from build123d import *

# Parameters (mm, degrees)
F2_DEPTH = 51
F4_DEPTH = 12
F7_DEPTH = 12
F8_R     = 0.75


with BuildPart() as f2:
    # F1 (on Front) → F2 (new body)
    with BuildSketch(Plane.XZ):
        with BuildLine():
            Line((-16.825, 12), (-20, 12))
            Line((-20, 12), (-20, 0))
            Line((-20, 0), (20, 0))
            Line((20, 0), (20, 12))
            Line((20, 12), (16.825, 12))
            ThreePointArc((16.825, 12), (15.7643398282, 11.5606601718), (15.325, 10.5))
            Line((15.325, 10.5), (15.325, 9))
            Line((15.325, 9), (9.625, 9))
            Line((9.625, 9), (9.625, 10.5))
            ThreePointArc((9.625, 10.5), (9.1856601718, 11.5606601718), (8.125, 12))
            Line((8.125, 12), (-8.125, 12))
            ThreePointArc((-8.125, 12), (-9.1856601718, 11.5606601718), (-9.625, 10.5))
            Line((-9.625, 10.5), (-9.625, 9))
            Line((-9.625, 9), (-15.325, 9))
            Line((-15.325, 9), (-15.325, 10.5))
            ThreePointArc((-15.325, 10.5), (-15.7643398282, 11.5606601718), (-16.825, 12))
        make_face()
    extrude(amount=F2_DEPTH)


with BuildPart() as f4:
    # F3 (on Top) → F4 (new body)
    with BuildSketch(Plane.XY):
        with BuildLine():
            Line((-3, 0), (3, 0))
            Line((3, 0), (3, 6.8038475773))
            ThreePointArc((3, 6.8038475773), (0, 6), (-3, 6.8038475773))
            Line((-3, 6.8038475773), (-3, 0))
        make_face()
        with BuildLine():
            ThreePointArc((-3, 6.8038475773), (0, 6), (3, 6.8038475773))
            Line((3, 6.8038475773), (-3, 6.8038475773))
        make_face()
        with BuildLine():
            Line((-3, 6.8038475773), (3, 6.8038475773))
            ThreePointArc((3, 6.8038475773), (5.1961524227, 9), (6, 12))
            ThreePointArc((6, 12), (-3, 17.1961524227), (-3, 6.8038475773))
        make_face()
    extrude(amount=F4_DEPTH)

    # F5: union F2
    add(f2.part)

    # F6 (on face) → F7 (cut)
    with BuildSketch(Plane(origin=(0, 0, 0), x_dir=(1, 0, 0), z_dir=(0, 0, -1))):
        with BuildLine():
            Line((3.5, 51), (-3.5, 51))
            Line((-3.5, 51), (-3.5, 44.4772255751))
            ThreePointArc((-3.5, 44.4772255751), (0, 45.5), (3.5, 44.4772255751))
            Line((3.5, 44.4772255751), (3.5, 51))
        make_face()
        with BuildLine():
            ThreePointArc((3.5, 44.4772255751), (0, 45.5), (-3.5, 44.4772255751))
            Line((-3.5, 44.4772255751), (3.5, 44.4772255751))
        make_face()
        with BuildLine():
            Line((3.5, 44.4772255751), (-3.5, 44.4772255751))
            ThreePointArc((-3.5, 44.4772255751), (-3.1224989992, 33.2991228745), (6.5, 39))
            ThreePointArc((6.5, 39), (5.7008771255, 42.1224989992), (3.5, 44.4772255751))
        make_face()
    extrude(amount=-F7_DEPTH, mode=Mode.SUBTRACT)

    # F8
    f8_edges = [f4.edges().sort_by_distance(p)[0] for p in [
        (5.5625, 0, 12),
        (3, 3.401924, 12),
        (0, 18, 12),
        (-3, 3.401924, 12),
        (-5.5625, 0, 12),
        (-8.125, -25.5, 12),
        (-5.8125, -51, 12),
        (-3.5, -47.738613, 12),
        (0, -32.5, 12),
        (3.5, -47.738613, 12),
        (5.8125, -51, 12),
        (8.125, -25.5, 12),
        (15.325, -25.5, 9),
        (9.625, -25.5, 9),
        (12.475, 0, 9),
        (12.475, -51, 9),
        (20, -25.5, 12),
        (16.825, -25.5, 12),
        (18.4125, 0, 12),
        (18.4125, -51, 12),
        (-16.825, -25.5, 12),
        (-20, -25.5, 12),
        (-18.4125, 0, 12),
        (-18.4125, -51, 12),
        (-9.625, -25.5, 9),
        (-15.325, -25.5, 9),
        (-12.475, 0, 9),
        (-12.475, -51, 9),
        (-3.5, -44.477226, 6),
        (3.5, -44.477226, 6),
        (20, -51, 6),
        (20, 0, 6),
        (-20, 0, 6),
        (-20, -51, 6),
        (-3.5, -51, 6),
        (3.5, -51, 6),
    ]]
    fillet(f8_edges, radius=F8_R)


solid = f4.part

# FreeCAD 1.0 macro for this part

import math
import FreeCAD as App
import Part
import Sketcher


def edges_at(feature, points):
    """Names of the edges that pass closest to the given points."""
    edges = feature.Shape.Edges
    near = lambda p: min(range(len(edges)), key=lambda i: edges[i].distToShape(Part.Vertex(*p))[0])
    return sorted({f"Edge{near(p) + 1}" for p in points})

doc = App.newDocument("Part")
body = doc.addObject("PartDesign::Body", "Body")

# Sketch on XZ plane
sketch1 = body.newObject("Sketcher::SketchObject", "Sketch")
sketch1.AttachmentSupport = (doc.getObject("XZ_Plane"), [""])
sketch1.MapMode = "FlatFace"
sketch1.addGeometry([
    Part.LineSegment(App.Vector(-16.825, 12, 0), App.Vector(-20, 12, 0)),  # 0
    Part.LineSegment(App.Vector(-20, 12, 0), App.Vector(-20, 0, 0)),  # 1
    Part.LineSegment(App.Vector(-20, 0, 0), App.Vector(20, 0, 0)),  # 2
    Part.LineSegment(App.Vector(20, 0, 0), App.Vector(20, 12, 0)),  # 3
    Part.LineSegment(App.Vector(20, 12, 0), App.Vector(16.825, 12, 0)),  # 4
    Part.ArcOfCircle(Part.Circle(App.Vector(16.825, 10.5, 0), App.Vector(0, 0, 1), 1.5), math.radians(90), math.radians(180)),  # 5
    Part.LineSegment(App.Vector(15.325, 10.5, 0), App.Vector(15.325, 9, 0)),  # 6
    Part.LineSegment(App.Vector(15.325, 9, 0), App.Vector(9.625, 9, 0)),  # 7
    Part.LineSegment(App.Vector(9.625, 9, 0), App.Vector(9.625, 10.5, 0)),  # 8
    Part.ArcOfCircle(Part.Circle(App.Vector(8.125, 10.5, 0), App.Vector(0, 0, 1), 1.5), math.radians(0), math.radians(90)),  # 9
    Part.LineSegment(App.Vector(8.125, 12, 0), App.Vector(-8.125, 12, 0)),  # 10
    Part.ArcOfCircle(Part.Circle(App.Vector(-8.125, 10.5, 0), App.Vector(0, 0, 1), 1.5), math.radians(90), math.radians(180)),  # 11
    Part.LineSegment(App.Vector(-9.625, 10.5, 0), App.Vector(-9.625, 9, 0)),  # 12
    Part.LineSegment(App.Vector(-9.625, 9, 0), App.Vector(-15.325, 9, 0)),  # 13
    Part.LineSegment(App.Vector(-15.325, 9, 0), App.Vector(-15.325, 10.5, 0)),  # 14
    Part.ArcOfCircle(Part.Circle(App.Vector(-16.825, 10.5, 0), App.Vector(0, 0, 1), 1.5), math.radians(0), math.radians(90)),  # 15
], False)
sketch1.addConstraint([
    Sketcher.Constraint("Coincident", 0, 2, 1, 1),
    Sketcher.Constraint("Coincident", 1, 2, 2, 1),
    Sketcher.Constraint("Coincident", 2, 2, 3, 1),
    Sketcher.Constraint("Coincident", 3, 2, 4, 1),
    Sketcher.Constraint("Tangent", 4, 2, 5, 1),
    Sketcher.Constraint("Tangent", 5, 2, 6, 1),
    Sketcher.Constraint("Coincident", 6, 2, 7, 1),
    Sketcher.Constraint("Coincident", 7, 2, 8, 1),
    Sketcher.Constraint("Tangent", 8, 2, 9, 1),
    Sketcher.Constraint("Tangent", 9, 2, 10, 1),
    Sketcher.Constraint("Tangent", 10, 2, 11, 1),
    Sketcher.Constraint("Tangent", 11, 2, 12, 1),
    Sketcher.Constraint("Coincident", 12, 2, 13, 1),
    Sketcher.Constraint("Coincident", 13, 2, 14, 1),
    Sketcher.Constraint("Tangent", 14, 2, 15, 1),
    Sketcher.Constraint("Tangent", 15, 2, 0, 1),
    Sketcher.Constraint("Horizontal", 0),
    Sketcher.Constraint("Vertical", 1),
    Sketcher.Constraint("Horizontal", 2),
    Sketcher.Constraint("Vertical", 3),
    Sketcher.Constraint("Horizontal", 4),
    Sketcher.Constraint("Vertical", 6),
    Sketcher.Constraint("Horizontal", 7),
    Sketcher.Constraint("Vertical", 8),
    Sketcher.Constraint("Horizontal", 10),
    Sketcher.Constraint("Vertical", 12),
    Sketcher.Constraint("Horizontal", 13),
    Sketcher.Constraint("Vertical", 14),
    Sketcher.Constraint("Equal", 5, 9),
    Sketcher.Constraint("Equal", 9, 11),
    Sketcher.Constraint("Equal", 11, 15),
    Sketcher.Constraint("Symmetric", 1, 2, 2, 2, -1, 1),
    Sketcher.Constraint("Symmetric", 5, 3, 15, 3, -2),
    Sketcher.Constraint("Symmetric", 7, 2, 12, 2, -2),
    Sketcher.Constraint("Horizontal", 5, 3, 9, 3),
    Sketcher.Constraint("Radius", 5, 1.5),
    Sketcher.Constraint("DistanceX", 2, 1, 2, 2, 40.0),
    Sketcher.Constraint("DistanceY", 1, 2, 1, 1, 12.0),
    Sketcher.Constraint("DistanceX", 7, 2, 7, 1, 5.7),
    Sketcher.Constraint("DistanceY", 6, 2, 6, 1, 1.5),
    Sketcher.Constraint("DistanceX", 10, 2, 10, 1, 16.25),
])
pad1 = body.newObject("PartDesign::Pad", "Pad")
pad1.Profile = sketch1
pad1.Length = 51
body2 = doc.addObject("PartDesign::Body", "Body001")

# Sketch on XY plane
sketch2 = body2.newObject("Sketcher::SketchObject", "Sketch001")
sketch2.AttachmentSupport = (doc.getObject("XY_Plane001"), [""])
sketch2.MapMode = "FlatFace"
sketch2.addGeometry([
    Part.LineSegment(App.Vector(-3, 0, 0), App.Vector(3, 0, 0)),  # 0
    Part.LineSegment(App.Vector(3, 0, 0), App.Vector(3, 6.803848, 0)),  # 1
    Part.ArcOfCircle(Part.Circle(App.Vector(0, 12, 0), App.Vector(0, 0, 1), 6), math.radians(-60), math.radians(0)),  # 2
    Part.ArcOfCircle(Part.Circle(App.Vector(0, 12, 0), App.Vector(0, 0, 1), 6), math.radians(0), math.radians(240)),  # 3
    Part.LineSegment(App.Vector(-3, 6.803848, 0), App.Vector(-3, 0, 0)),  # 4
], False)
sketch2.addConstraint([
    Sketcher.Constraint("Coincident", 0, 2, 1, 1),
    Sketcher.Constraint("Coincident", 1, 2, 2, 1),
    Sketcher.Constraint("Tangent", 2, 2, 3, 1),
    Sketcher.Constraint("Coincident", 3, 2, 4, 1),
    Sketcher.Constraint("Coincident", 4, 2, 0, 1),
    Sketcher.Constraint("Horizontal", 0),
    Sketcher.Constraint("Vertical", 1),
    Sketcher.Constraint("Vertical", 4),
    Sketcher.Constraint("Equal", 2, 3),
    Sketcher.Constraint("Symmetric", 0, 2, 4, 2, -1, 1),
    Sketcher.Constraint("PointOnObject", 2, 3, -2),
    Sketcher.Constraint("Horizontal", 3, 3, 2, 2),
    Sketcher.Constraint("Radius", 2, 6.0),
    Sketcher.Constraint("DistanceX", 0, 1, 0, 2, 6.0),
    Sketcher.Constraint("DistanceY", -1, 1, 2, 3, 12.0),
])
pad2 = body2.newObject("PartDesign::Pad", "Pad001")
pad2.Profile = sketch2
pad2.Length = 12
doc.recompute()

boolean = body2.newObject("PartDesign::Boolean", "Boolean")
boolean.Type = "Fuse"
boolean.addObjects([body])

# Sketch on XY plane
sketch3 = body2.newObject("Sketcher::SketchObject", "Sketch002")
sketch3.AttachmentSupport = (doc.getObject("XY_Plane001"), [""])
sketch3.MapMode = "FlatFace"
sketch3.addGeometry([
    Part.LineSegment(App.Vector(3.5, -51, 0), App.Vector(-3.5, -51, 0)),  # 0
    Part.LineSegment(App.Vector(-3.5, -51, 0), App.Vector(-3.5, -44.477226, 0)),  # 1
    Part.ArcOfCircle(Part.Circle(App.Vector(0, -39, 0), App.Vector(0, 0, 1), 6.5), math.radians(0), math.radians(237.42103)),  # 2
    Part.ArcOfCircle(Part.Circle(App.Vector(0, -39, 0), App.Vector(0, 0, 1), 6.5), math.radians(-57.42103), math.radians(0)),  # 3
    Part.LineSegment(App.Vector(3.5, -44.477226, 0), App.Vector(3.5, -51, 0)),  # 4
], False)
sketch3.addConstraint([
    Sketcher.Constraint("Coincident", 0, 2, 1, 1),
    Sketcher.Constraint("Coincident", 1, 2, 2, 2),
    Sketcher.Constraint("Tangent", 2, 1, 3, 2),
    Sketcher.Constraint("Coincident", 3, 1, 4, 1),
    Sketcher.Constraint("Coincident", 4, 2, 0, 1),
    Sketcher.Constraint("Horizontal", 0),
    Sketcher.Constraint("Vertical", 1),
    Sketcher.Constraint("Vertical", 4),
    Sketcher.Constraint("Equal", 2, 3),
    Sketcher.Constraint("Symmetric", 1, 2, 3, 1, -2),
    Sketcher.Constraint("Horizontal", 3, 3, 2, 1),
    Sketcher.Constraint("Radius", 2, 6.5),
    Sketcher.Constraint("DistanceX", 0, 2, 0, 1, 7.0),
    Sketcher.Constraint("DistanceY", 2, 3, -1, 1, 39.0),
    Sketcher.Constraint("DistanceY", 0, 2, -1, 1, 51.0),
])
pocket1 = body2.newObject("PartDesign::Pocket", "Pocket")
pocket1.Profile = sketch3
pocket1.Length = 12
pocket1.Reversed = True
doc.recompute()

fillet = body2.newObject("PartDesign::Fillet", "Fillet")
fillet.Base = (pocket1, edges_at(pocket1, [
    (5.562, 0, 12),
    (3, 3.402, 12),
    (-3, 17.196, 12),
    (-3, 3.402, 12),
    (-5.562, 0, 12),
    (-8.125, -25.5, 12),
    (-5.812, -51, 12),
    (-3.5, -47.739, 12),
    (-3.122, -33.299, 12),
    (3.5, -47.739, 12),
    (5.812, -51, 12),
    (8.125, -25.5, 12),
    (15.325, -25.5, 9),
    (9.625, -25.5, 9),
    (12.475, 0, 9),
    (12.475, -51, 9),
    (20, -25.5, 12),
    (16.825, -25.5, 12),
    (18.413, 0, 12),
    (18.413, -51, 12),
    (-16.825, -25.5, 12),
    (-20, -25.5, 12),
    (-18.413, 0, 12),
    (-18.413, -51, 12),
    (-9.625, -25.5, 9),
    (-15.325, -25.5, 9),
    (-12.475, 0, 9),
    (-12.475, -51, 9),
    (-3.5, -44.477, 6),
    (3.5, -44.477, 6),
    (20, -51, 6),
    (20, 0, 6),
    (-20, 0, 6),
    (-20, -51, 6),
    (-3.5, -51, 6),
    (3.5, -51, 6),
]))
fillet.Radius = 0.75

doc.recompute()
